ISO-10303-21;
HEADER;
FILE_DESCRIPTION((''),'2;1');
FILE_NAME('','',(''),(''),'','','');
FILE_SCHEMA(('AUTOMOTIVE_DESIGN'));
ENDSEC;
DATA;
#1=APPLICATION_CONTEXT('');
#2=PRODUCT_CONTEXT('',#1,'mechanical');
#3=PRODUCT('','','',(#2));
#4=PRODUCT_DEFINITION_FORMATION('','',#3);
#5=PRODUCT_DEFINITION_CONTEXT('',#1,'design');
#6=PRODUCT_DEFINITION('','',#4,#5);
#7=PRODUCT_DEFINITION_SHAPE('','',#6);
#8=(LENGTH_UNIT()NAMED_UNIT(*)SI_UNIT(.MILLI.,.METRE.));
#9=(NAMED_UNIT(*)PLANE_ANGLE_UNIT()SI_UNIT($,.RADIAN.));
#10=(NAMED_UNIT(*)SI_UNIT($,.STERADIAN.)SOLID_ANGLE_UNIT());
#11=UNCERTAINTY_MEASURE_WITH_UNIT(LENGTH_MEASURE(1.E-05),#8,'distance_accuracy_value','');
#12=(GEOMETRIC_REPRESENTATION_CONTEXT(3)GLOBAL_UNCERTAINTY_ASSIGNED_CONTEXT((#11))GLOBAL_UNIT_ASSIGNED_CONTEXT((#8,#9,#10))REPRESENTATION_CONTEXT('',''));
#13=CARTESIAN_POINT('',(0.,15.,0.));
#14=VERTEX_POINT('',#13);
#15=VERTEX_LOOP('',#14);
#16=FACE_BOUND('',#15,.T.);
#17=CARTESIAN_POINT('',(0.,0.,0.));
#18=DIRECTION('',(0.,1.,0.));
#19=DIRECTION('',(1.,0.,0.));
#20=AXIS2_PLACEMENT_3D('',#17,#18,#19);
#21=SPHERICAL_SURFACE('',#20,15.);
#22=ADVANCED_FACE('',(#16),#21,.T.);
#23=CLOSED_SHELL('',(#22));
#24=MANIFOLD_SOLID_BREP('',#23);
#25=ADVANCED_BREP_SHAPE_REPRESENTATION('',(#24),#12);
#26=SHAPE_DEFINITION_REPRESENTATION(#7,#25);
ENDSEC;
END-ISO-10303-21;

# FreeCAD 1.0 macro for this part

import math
import FreeCAD as App
import Part
import Sketcher

V = App.Vector
Q = App.Units.Quantity

doc = App.newDocument("Part")
body = doc.addObject("PartDesign::Body", "Body")

# Sketch on XY plane
sketch1 = doc.addObject("Sketcher::SketchObject", "Sketch")
body.addObject(sketch1)
sketch1.AttachmentSupport = (doc.XY_Plane, [""])
sketch1.MapMode = "FlatFace"
sketch1.addGeometry([
    Part.ArcOfCircle(Part.Circle(V(0, 0, 0), V(0, 0, 1), 15), math.radians(-90), math.radians(0)),
    Part.ArcOfCircle(Part.Circle(V(0, 0, 0), V(0, 0, 1), 15), math.radians(0), math.radians(90)),
    Part.LineSegment(V(0, 15, 0), V(0, -15, 0)),
], False)
sketch1.addConstraint([
    Sketcher.Constraint("Tangent", 0, 2, 1, 1),
    Sketcher.Constraint("Coincident", 1, 2, 2, 1),
    Sketcher.Constraint("Coincident", 2, 2, 0, 1),
    Sketcher.Constraint("Vertical", 2),
    Sketcher.Constraint("Coincident", 0, 3, -1, 1),
    Sketcher.Constraint("Equal", 0, 1),
    Sketcher.Constraint("PointOnObject", 0, 2, -1),
    Sketcher.Constraint("PointOnObject", 1, 2, -2),
    Sketcher.Constraint("Radius", 0, Q("15 mm")),
])
revolution = doc.addObject("PartDesign::Revolution", "Revolution")
body.addObject(revolution)
revolution.Profile = sketch1
revolution.ReferenceAxis = (sketch1, ["V_Axis"])
revolution.Angle = 360

doc.recompute()
